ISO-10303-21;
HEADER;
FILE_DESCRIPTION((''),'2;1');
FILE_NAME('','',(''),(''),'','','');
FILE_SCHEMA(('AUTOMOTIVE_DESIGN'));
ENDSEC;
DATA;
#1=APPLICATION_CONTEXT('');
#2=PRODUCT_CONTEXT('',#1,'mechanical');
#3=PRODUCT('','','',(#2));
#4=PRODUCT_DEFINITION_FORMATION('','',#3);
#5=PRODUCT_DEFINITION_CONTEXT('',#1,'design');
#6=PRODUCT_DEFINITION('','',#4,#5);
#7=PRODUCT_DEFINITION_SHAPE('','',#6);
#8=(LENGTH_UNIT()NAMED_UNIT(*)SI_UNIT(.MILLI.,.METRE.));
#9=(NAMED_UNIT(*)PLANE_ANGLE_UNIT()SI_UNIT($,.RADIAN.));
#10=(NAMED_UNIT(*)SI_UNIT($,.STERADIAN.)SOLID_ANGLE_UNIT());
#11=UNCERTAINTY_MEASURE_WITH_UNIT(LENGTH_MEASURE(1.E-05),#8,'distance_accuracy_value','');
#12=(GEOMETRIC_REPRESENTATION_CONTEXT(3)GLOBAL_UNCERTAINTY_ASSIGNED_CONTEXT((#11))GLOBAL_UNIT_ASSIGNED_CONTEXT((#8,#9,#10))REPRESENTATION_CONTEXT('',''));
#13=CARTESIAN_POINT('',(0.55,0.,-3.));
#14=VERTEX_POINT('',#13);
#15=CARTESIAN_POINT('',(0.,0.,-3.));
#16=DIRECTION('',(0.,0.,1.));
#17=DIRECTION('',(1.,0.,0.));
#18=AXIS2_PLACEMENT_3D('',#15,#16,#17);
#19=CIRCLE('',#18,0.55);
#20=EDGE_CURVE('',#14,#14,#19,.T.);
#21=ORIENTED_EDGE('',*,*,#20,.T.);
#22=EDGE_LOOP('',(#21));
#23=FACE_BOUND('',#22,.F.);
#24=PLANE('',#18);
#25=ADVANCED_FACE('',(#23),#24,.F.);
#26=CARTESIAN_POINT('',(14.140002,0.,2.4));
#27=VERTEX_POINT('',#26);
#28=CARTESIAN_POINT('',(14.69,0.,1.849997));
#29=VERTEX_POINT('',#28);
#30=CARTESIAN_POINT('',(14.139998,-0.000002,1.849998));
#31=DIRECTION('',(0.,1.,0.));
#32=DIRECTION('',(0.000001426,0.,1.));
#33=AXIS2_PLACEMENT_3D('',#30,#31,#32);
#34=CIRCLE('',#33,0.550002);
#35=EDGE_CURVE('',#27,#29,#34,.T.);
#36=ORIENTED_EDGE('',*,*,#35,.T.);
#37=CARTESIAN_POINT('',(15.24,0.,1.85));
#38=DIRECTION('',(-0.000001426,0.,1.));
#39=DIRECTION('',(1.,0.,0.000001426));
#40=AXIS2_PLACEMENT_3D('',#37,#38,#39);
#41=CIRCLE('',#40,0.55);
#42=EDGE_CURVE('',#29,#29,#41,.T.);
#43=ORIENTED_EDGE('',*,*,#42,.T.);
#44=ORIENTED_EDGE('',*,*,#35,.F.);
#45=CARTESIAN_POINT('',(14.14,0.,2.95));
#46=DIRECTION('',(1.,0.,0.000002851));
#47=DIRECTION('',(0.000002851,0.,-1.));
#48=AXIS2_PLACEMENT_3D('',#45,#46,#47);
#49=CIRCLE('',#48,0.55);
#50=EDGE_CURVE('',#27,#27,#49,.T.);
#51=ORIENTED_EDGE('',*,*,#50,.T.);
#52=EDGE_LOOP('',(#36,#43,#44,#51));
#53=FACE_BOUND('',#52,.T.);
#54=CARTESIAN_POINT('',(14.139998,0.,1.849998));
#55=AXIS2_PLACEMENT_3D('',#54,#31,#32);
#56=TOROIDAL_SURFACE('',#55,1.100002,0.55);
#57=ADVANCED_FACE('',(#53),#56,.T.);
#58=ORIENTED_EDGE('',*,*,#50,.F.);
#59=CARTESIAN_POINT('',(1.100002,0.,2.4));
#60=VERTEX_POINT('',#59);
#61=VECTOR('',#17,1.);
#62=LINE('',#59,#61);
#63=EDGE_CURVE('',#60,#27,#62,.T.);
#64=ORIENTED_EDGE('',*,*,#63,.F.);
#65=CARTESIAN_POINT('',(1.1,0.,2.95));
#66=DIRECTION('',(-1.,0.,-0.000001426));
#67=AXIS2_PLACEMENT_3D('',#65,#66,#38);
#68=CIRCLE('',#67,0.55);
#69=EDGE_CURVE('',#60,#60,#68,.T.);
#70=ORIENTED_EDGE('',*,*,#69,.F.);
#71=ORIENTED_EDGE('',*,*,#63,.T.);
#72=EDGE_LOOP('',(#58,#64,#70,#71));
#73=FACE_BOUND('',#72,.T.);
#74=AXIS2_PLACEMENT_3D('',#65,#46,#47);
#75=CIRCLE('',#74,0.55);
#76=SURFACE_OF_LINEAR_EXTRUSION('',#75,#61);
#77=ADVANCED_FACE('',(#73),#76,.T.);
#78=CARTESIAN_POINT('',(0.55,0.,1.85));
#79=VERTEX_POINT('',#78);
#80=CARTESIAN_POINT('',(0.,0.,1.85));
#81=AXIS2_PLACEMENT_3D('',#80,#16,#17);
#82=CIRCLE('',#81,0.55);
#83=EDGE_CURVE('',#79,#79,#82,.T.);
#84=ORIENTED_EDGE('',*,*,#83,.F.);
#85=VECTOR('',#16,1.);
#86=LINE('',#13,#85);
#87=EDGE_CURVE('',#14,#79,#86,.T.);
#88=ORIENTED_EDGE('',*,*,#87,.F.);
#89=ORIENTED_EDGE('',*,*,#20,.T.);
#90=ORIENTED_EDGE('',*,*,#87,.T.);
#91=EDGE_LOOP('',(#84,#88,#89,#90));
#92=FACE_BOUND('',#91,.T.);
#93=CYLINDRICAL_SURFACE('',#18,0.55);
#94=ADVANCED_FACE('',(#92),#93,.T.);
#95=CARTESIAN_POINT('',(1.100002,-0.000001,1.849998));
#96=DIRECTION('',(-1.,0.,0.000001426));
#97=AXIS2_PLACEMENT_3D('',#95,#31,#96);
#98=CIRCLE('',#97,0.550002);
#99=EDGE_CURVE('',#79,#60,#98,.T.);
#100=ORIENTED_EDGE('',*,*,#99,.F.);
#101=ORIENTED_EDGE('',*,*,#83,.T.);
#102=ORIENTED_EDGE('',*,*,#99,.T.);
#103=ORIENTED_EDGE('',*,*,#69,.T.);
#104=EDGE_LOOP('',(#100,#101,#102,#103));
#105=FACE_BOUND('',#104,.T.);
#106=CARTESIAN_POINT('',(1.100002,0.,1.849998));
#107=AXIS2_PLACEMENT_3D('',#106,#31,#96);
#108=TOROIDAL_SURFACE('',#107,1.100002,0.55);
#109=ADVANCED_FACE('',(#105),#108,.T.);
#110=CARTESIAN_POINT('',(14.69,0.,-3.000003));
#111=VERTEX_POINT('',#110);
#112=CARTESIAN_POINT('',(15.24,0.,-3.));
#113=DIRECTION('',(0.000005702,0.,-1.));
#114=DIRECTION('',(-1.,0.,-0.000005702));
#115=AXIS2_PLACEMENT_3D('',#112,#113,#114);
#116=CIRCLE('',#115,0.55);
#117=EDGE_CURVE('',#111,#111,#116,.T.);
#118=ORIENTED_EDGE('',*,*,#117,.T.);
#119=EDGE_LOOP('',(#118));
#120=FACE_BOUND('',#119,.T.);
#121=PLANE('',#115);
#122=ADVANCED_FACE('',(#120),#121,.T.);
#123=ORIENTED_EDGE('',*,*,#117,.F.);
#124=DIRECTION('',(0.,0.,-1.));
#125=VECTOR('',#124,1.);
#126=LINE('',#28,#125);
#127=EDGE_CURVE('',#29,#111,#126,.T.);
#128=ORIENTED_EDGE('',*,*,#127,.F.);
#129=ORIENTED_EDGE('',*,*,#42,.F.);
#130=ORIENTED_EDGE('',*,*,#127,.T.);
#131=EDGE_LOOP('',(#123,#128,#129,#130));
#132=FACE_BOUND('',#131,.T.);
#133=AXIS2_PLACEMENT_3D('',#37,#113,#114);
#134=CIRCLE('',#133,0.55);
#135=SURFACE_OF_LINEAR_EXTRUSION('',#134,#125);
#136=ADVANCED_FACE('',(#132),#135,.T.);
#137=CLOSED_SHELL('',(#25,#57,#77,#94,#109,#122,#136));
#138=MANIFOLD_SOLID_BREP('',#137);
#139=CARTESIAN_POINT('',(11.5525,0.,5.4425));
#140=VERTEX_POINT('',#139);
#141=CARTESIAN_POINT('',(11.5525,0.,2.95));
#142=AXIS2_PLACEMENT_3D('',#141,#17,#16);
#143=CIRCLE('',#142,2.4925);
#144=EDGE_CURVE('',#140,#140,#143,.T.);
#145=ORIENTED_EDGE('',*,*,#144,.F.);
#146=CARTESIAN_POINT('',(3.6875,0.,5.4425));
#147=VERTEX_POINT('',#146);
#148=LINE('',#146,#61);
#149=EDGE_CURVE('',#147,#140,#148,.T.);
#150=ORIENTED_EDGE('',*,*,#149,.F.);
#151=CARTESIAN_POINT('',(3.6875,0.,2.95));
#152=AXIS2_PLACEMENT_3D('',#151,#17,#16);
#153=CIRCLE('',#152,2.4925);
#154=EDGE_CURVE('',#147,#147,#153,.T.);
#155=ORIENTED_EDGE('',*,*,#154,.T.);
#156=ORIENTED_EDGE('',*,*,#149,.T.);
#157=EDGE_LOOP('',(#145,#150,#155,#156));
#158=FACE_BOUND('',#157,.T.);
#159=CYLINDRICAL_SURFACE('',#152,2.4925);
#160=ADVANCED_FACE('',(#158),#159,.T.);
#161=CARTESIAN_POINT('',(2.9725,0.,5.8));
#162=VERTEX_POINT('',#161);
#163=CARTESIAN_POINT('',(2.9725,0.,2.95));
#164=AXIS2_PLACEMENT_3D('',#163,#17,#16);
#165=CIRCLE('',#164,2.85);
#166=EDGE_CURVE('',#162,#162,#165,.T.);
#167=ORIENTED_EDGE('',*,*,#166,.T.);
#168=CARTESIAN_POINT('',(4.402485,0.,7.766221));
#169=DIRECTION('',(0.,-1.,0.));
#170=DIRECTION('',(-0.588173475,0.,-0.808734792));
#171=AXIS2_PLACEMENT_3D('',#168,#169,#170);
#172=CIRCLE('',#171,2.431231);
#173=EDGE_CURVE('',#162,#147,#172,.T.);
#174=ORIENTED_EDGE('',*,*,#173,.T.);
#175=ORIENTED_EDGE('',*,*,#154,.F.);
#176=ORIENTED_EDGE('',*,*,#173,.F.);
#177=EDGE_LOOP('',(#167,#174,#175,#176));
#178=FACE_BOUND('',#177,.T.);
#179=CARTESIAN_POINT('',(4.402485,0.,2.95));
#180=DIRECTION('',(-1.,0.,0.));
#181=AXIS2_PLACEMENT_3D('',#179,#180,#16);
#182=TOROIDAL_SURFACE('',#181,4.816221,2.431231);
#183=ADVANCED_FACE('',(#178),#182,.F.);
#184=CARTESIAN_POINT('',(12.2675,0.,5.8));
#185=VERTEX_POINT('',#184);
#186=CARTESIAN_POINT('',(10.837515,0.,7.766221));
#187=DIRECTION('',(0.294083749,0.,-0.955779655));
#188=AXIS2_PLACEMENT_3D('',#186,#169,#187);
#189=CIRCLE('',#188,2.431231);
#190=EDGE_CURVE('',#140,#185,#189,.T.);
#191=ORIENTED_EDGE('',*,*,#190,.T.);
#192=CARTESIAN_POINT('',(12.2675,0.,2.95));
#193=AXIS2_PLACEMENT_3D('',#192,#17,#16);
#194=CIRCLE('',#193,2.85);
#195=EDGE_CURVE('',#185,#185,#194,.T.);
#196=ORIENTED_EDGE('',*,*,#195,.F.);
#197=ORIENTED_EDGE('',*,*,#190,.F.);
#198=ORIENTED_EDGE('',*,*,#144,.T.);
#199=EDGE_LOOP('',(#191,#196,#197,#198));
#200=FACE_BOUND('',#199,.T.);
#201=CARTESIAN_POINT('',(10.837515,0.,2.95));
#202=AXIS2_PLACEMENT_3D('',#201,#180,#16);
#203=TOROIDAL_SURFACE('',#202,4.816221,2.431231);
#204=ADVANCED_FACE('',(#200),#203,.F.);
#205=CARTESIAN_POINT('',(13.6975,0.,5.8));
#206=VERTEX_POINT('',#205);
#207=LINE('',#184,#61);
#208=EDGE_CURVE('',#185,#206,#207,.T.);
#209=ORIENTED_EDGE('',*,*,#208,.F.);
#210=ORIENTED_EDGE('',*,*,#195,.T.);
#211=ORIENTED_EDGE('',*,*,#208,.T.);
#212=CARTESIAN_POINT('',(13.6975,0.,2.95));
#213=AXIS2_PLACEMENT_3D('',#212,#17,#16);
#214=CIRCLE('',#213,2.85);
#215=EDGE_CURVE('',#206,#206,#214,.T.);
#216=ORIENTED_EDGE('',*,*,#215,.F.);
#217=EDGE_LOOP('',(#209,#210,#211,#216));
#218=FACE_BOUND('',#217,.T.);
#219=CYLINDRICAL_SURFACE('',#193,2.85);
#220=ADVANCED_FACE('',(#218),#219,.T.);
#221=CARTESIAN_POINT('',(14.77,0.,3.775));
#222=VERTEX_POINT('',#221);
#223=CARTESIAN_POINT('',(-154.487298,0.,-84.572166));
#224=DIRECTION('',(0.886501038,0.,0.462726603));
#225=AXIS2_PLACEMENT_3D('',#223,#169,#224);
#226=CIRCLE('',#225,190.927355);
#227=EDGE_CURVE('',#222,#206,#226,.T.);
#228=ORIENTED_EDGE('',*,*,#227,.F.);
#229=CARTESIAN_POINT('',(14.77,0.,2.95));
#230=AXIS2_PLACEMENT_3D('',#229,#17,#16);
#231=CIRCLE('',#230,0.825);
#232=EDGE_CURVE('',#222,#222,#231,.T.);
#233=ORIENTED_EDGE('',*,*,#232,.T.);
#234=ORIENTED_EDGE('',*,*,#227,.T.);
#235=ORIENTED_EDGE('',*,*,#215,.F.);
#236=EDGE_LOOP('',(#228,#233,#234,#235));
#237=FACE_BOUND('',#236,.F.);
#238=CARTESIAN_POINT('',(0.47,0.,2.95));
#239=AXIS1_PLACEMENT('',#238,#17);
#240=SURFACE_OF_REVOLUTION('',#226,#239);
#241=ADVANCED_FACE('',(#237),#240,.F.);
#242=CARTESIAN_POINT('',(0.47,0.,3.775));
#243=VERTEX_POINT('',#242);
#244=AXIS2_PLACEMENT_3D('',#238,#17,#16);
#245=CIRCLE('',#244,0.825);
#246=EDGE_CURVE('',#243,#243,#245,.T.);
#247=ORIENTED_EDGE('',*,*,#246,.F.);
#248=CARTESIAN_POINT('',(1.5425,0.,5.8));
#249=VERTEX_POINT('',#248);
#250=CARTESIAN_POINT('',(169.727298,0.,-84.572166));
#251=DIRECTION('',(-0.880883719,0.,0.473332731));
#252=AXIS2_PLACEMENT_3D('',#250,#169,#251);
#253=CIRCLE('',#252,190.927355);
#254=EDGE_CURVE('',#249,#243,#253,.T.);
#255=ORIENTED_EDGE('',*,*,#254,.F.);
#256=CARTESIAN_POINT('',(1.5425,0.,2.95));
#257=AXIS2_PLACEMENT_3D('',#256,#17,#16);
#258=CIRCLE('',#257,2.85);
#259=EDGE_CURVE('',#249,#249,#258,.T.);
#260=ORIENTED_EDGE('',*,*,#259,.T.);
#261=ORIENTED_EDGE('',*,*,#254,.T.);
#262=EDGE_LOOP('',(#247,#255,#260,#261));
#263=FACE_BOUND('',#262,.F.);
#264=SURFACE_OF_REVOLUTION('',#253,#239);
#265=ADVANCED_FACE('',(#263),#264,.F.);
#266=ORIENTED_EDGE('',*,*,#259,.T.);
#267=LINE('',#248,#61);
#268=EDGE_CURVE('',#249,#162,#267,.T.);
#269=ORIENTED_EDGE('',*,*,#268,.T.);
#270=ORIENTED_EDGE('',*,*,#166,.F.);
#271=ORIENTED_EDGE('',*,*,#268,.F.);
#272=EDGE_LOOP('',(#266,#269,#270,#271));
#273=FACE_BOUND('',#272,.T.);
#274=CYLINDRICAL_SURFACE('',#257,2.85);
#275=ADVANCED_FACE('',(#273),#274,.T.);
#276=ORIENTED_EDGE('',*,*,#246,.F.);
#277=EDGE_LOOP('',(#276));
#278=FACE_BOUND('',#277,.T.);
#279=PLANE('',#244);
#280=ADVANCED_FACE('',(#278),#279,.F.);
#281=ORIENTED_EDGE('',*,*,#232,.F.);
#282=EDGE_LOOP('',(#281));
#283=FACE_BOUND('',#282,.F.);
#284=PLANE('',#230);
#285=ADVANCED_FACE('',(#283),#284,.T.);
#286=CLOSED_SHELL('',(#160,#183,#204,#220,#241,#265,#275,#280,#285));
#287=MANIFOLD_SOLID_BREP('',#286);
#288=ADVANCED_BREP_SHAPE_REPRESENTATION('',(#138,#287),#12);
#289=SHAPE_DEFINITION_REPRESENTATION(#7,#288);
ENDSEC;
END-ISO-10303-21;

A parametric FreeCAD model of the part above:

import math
import FreeCAD as App
import Part
import Sketcher
from FreeCAD import Vector
Q = App.Units.Quantity

doc = App.newDocument("Part")
body = doc.addObject("PartDesign::Body", "Body")

# Sketch on XZ plane
sketch1 = body.newObject("Sketcher::SketchObject", "Sketch")
sketch1.AttachmentSupport = (doc.getObject("XZ_Plane"), [""])
sketch1.MapMode = "FlatFace"
sketch1.addGeometry(Part.LineSegment(Vector(2.9725, 5.8, 0), Vector(1.5425, 5.8, 0)), False)
sketch1.addGeometry(Part.ArcOfCircle(Part.Circle(Vector(169.727298, -84.572166, 0), Vector(0, 0, 1), 190.927355), math.radians(151.74915), math.radians(152.436809)), False)
sketch1.addGeometry(Part.LineSegment(Vector(0.47, 3.775, 0), Vector(0.47, 2.95, 0)), False)
sketch1.addGeometry(Part.LineSegment(Vector(0.47, 2.95, 0), Vector(14.77, 2.95, 0)), False)
sketch1.addGeometry(Part.LineSegment(Vector(14.77, 2.95, 0), Vector(14.77, 3.775, 0)), False)
sketch1.addGeometry(Part.ArcOfCircle(Part.Circle(Vector(-154.487298, -84.572166, 0), Vector(0, 0, 1), 190.927355), math.radians(27.563191), math.radians(28.25085)), False)
sketch1.addGeometry(Part.LineSegment(Vector(13.6975, 5.8, 0), Vector(12.2675, 5.8, 0)), False)
sketch1.addGeometry(Part.ArcOfCircle(Part.Circle(Vector(10.837515, 7.766221, 0), Vector(0, 0, 1), 2.431231), math.radians(-72.897397), math.radians(-53.972501)), False)
sketch1.addGeometry(Part.LineSegment(Vector(11.5525, 5.4425, 0), Vector(3.6875, 5.4425, 0)), False)
sketch1.addGeometry(Part.ArcOfCircle(Part.Circle(Vector(4.402485, 7.766221, 0), Vector(0, 0, 1), 2.431231), math.radians(-126.027499), math.radians(-107.102603)), False)
sketch1.addGeometry(Part.LineSegment(Vector(-154.487298, 2.95, 0), Vector(169.727298, 2.95, 0)), True)  # axis
sketch1.addConstraint(Sketcher.Constraint("Coincident", 0, 2, 1, 1))
sketch1.addConstraint(Sketcher.Constraint("Coincident", 1, 2, 2, 1))
sketch1.addConstraint(Sketcher.Constraint("Coincident", 2, 2, 3, 1))
sketch1.addConstraint(Sketcher.Constraint("Coincident", 3, 2, 4, 1))
sketch1.addConstraint(Sketcher.Constraint("Coincident", 4, 2, 5, 1))
sketch1.addConstraint(Sketcher.Constraint("Coincident", 5, 2, 6, 1))
sketch1.addConstraint(Sketcher.Constraint("Coincident", 6, 2, 7, 2))
sketch1.addConstraint(Sketcher.Constraint("Coincident", 7, 1, 8, 1))
sketch1.addConstraint(Sketcher.Constraint("Coincident", 8, 2, 9, 2))
sketch1.addConstraint(Sketcher.Constraint("Coincident", 9, 1, 0, 1))
sketch1.addConstraint(Sketcher.Constraint("Horizontal", 0))
sketch1.addConstraint(Sketcher.Constraint("Vertical", 2))
sketch1.addConstraint(Sketcher.Constraint("Horizontal", 3))
sketch1.addConstraint(Sketcher.Constraint("Vertical", 4))
sketch1.addConstraint(Sketcher.Constraint("Horizontal", 6))
sketch1.addConstraint(Sketcher.Constraint("Horizontal", 8))
sketch1.addConstraint(Sketcher.Constraint("Horizontal", 10))
sketch1.addConstraint(Sketcher.Constraint("Equal", 1, 5))
sketch1.addConstraint(Sketcher.Constraint("Equal", 7, 9))
sketch1.addConstraint(Sketcher.Constraint("Horizontal", 1, 3, 5, 3))
sketch1.addConstraint(Sketcher.Constraint("Horizontal", 7, 3, 9, 3))
sketch1.addConstraint(Sketcher.Constraint("Horizontal", 1, 2, 4, 2))
sketch1.addConstraint(Sketcher.Constraint("Horizontal", 0, 2, 5, 2))
sketch1.addConstraint(Sketcher.Constraint("Horizontal", 3, 2, 10, 1))
sketch1.addConstraint(Sketcher.Constraint("Vertical", 5, 3, 10, 1))
sketch1.addConstraint(Sketcher.Constraint("Vertical", 1, 3, 10, 2))
sketch1.addConstraint(Sketcher.Constraint("Equal", 0, 6))
sketch1.addConstraint(Sketcher.Constraint("DistanceX", 3, 1, 3, 2, Q("14.3 mm")))
sketch1.addConstraint(Sketcher.Constraint("DistanceX", 0, 2, 0, 1, Q("1.43 mm")))
sketch1.addConstraint(Sketcher.Constraint("DistanceY", -1, 1, 0, 2, Q("5.8 mm")))
sketch1.addConstraint(Sketcher.Constraint("DistanceX", 8, 2, 8, 1, Q("7.865 mm")))
sketch1.addConstraint(Sketcher.Constraint("DistanceY", 2, 2, 2, 1, Q("0.825 mm")))
sketch1.addConstraint(Sketcher.Constraint("DistanceX", -1, 1, 1, 2, Q("0.47 mm")))
sketch1.addConstraint(Sketcher.Constraint("DistanceY", -1, 1, 2, 2, Q("2.95 mm")))
sketch1.addConstraint(Sketcher.Constraint("Radius", 7, Q("2.431231 mm")))
sketch1.addConstraint(Sketcher.Constraint("Radius", 1, Q("190.927355 mm")))
sketch1.addConstraint(Sketcher.Constraint("DistanceX", 7, 1, 6, 2, Q("0.715 mm")))
sketch1.addConstraint(Sketcher.Constraint("DistanceY", -1, 1, 7, 1, Q("5.4425 mm")))
revolution = body.newObject("PartDesign::Revolution", "Revolution")
revolution.Profile = sketch1
revolution.ReferenceAxis = (sketch1, ["Axis0"])
revolution.Angle = 360
body2 = doc.addObject("PartDesign::Body", "Body001")

# Sketch on XY plane
sketch2 = body2.newObject("Sketcher::SketchObject", "Sketch001")
sketch2.AttachmentSupport = (doc.getObject("XY_Plane001"), [""])
sketch2.MapMode = "FlatFace"
sketch2.AttachmentOffset = App.Placement(Vector(0, 0, -2), App.Rotation())
sketch2.addGeometry(Part.Circle(Vector(0, 0, 0), Vector(0, 0, 1), 0.55), False)
sketch2.addConstraint(Sketcher.Constraint("Coincident", 0, 3, -1, 1))
sketch2.addConstraint(Sketcher.Constraint("Diameter", 0, Q("1.1 mm")))

# Sketch on XZ plane
sketch3 = body2.newObject("Sketcher::SketchObject", "Sketch002")
sketch3.AttachmentSupport = (doc.getObject("XZ_Plane001"), [""])
sketch3.MapMode = "FlatFace"
sketch3.addGeometry(Part.LineSegment(Vector(0, -3, 0), Vector(0, 1.85, 0)), False)
sketch3.addGeometry(Part.ArcOfCircle(Part.Circle(Vector(1.100002, 1.849998, 0), Vector(0, 0, 1), 1.100002), math.radians(90.000082), math.radians(179.999918)), False)
sketch3.addGeometry(Part.LineSegment(Vector(1.1, 2.95, 0), Vector(14.14, 2.95, 0)), False)
sketch3.addGeometry(Part.ArcOfCircle(Part.Circle(Vector(14.139998, 1.849998, 0), Vector(0, 0, 1), 1.100002), math.radians(0.000082), math.radians(89.999918)), False)
sketch3.addGeometry(Part.LineSegment(Vector(15.24, 1.85, 0), Vector(15.24, -3, 0)), False)
sketch3.addConstraint(Sketcher.Constraint("Tangent", 0, 2, 1, 2))
sketch3.addConstraint(Sketcher.Constraint("Tangent", 1, 1, 2, 1))
sketch3.addConstraint(Sketcher.Constraint("Tangent", 2, 2, 3, 2))
sketch3.addConstraint(Sketcher.Constraint("Tangent", 3, 1, 4, 1))
sketch3.addConstraint(Sketcher.Constraint("Vertical", 0))
sketch3.addConstraint(Sketcher.Constraint("Horizontal", 2))
sketch3.addConstraint(Sketcher.Constraint("Vertical", 4))
sketch3.addConstraint(Sketcher.Constraint("Equal", 1, 3))
sketch3.addConstraint(Sketcher.Constraint("PointOnObject", 0, 1, -2))
sketch3.addConstraint(Sketcher.Constraint("Horizontal", 0, 1, 4, 2))
sketch3.addConstraint(Sketcher.Constraint("Radius", 1, Q("1.100002 mm")))
sketch3.addConstraint(Sketcher.Constraint("DistanceY", 0, 1, -1, 1, Q("3 mm")))
sketch3.addConstraint(Sketcher.Constraint("DistanceX", 2, 1, 2, 2, Q("13.04 mm")))
sketch3.addConstraint(Sketcher.Constraint("DistanceY", 0, 1, 0, 2, Q("4.85 mm")))
doc.recompute()

additivepipe = body2.newObject("PartDesign::AdditivePipe", "AdditivePipe")
additivepipe.Profile = sketch2
additivepipe.Spine = (sketch3, ["Edge1", "Edge2", "Edge3", "Edge4", "Edge5"])

doc.recompute()
